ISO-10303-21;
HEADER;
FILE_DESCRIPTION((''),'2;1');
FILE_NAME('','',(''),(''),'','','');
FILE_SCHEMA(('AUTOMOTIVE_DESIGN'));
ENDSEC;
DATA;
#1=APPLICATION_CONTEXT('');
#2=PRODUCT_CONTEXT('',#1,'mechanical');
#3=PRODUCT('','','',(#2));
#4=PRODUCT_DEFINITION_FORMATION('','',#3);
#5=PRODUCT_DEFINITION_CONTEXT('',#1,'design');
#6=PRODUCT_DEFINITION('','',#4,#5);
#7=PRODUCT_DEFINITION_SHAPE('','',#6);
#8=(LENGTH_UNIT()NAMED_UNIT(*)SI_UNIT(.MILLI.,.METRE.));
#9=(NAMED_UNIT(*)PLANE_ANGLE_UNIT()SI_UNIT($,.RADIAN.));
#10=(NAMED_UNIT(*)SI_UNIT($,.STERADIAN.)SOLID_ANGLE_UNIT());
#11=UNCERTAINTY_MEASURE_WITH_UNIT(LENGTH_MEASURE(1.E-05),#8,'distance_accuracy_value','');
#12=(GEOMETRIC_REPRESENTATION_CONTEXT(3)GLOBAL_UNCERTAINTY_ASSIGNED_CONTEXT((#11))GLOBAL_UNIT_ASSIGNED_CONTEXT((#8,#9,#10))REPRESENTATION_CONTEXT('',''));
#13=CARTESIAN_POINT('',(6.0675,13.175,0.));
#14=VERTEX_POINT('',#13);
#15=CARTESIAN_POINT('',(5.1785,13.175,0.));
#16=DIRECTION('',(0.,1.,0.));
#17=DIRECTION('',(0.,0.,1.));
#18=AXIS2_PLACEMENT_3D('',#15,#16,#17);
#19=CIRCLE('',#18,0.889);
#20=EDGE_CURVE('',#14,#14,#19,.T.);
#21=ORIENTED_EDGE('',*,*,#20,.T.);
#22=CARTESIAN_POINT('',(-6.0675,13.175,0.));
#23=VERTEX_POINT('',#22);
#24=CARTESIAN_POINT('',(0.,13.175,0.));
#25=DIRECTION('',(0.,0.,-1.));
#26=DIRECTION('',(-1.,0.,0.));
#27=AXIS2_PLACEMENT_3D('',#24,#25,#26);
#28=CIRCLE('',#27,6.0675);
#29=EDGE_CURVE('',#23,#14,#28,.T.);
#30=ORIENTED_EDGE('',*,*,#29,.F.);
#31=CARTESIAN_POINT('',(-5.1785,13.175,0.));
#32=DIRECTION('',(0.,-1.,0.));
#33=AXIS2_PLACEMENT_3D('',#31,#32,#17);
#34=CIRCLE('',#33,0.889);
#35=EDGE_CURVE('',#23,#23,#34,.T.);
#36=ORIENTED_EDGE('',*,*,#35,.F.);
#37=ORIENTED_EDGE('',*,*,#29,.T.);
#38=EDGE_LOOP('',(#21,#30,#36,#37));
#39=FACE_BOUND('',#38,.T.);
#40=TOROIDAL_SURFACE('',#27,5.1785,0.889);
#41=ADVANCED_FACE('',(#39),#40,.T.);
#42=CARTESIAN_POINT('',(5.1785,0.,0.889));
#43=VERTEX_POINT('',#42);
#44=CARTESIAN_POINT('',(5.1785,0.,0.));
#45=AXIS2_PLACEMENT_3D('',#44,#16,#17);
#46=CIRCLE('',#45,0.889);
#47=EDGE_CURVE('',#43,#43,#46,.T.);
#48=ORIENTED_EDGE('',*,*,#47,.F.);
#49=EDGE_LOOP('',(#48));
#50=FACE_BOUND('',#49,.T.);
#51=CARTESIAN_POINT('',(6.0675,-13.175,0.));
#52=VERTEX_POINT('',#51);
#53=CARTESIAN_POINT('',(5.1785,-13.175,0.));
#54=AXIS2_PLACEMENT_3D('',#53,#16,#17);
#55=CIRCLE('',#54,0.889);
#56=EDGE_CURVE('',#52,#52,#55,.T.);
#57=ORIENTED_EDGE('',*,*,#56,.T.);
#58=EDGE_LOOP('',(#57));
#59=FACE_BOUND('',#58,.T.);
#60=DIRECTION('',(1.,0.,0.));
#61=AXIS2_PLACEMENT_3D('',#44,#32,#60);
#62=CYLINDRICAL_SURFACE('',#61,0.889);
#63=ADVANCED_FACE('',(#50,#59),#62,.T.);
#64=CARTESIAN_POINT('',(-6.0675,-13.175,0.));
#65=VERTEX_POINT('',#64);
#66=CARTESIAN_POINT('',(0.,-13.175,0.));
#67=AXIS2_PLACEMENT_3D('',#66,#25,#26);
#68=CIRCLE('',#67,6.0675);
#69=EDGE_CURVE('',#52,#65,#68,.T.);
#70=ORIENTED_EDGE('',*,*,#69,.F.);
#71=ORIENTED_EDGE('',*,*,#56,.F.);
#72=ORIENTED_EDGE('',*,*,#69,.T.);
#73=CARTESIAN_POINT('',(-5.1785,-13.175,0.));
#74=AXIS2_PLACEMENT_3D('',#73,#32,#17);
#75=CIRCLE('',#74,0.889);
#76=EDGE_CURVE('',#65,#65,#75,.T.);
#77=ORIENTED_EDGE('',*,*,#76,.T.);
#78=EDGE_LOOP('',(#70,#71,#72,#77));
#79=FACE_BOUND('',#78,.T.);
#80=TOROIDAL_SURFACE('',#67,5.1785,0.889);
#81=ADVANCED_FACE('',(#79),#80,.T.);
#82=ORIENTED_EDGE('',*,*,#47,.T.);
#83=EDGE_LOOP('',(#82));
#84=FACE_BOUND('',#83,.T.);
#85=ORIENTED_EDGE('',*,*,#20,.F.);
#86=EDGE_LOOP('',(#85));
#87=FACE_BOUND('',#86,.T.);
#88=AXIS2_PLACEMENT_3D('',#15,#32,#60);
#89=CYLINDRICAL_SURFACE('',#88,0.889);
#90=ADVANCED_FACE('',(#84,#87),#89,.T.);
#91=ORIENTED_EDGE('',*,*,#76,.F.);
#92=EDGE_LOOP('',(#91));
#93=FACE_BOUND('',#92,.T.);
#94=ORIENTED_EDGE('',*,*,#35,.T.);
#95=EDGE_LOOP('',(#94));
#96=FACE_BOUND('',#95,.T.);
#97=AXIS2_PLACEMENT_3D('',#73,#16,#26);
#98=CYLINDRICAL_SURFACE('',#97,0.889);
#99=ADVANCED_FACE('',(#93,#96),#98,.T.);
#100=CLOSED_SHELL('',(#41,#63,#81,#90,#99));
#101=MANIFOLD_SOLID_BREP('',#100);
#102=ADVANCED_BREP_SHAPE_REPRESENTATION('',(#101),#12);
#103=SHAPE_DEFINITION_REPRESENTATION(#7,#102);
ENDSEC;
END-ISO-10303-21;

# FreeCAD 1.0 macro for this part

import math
import FreeCAD as App
import Part
import Sketcher
from FreeCAD import Vector
Q = App.Units.Quantity

doc = App.newDocument("Part")
body = doc.addObject("PartDesign::Body", "Body")

sketch1 = body.newObject("Sketcher::SketchObject", "Sketch")
sketch1.AttachmentSupport = (doc.getObject("XZ_Plane"), [""])
sketch1.MapMode = "FlatFace"
sketch1.addGeometry(Part.Circle(Vector(5.2, 0, 0), Vector(0, 0, 1), 0.9), False)
sketch1.addConstraint([
    Sketcher.Constraint("PointOnObject", 0, 3, -1),
    Sketcher.Constraint("Diameter", 0, Q("0.07 in")),
    Sketcher.Constraint("DistanceX", -1, 1, 0, 3, 5.1785),
])

sketch2 = body.newObject("Sketcher::SketchObject", "Sketch001")
sketch2.AttachmentSupport = (doc.getObject("XY_Plane"), [""])
sketch2.MapMode = "FlatFace"
sketch2.addGeometry([
    Part.LineSegment(Vector(-4.3, -13.2, 0), Vector(-4.3, 13.2, 0)),
    Part.ArcOfCircle(Part.Circle(Vector(0, 13.2, 0), Vector(0, 0, 1), 4.3), math.radians(0), math.radians(180)),
    Part.LineSegment(Vector(4.3, 13.2, 0), Vector(4.3, -13.2, 0)),
    Part.ArcOfCircle(Part.Circle(Vector(0, -13.2, 0), Vector(0, 0, 1), 4.3), math.radians(180), math.radians(360)),
], False)
sketch2.addConstraint([
    Sketcher.Constraint("Tangent", 0, 2, 1, 2),
    Sketcher.Constraint("Tangent", 1, 1, 2, 1),
    Sketcher.Constraint("Tangent", 2, 2, 3, 2),
    Sketcher.Constraint("Tangent", 3, 1, 0, 1),
    Sketcher.Constraint("Vertical", 0),
    Sketcher.Constraint("Vertical", 2),
    Sketcher.Constraint("Symmetric", 1, 3, 3, 3, -1, 1),
    Sketcher.Constraint("Radius", 1, 4.2895),
    Sketcher.Constraint("DistanceY", 0, 1, 0, 2, 26.35),
])
doc.recompute()

additivepipe = body.newObject("PartDesign::AdditivePipe", "AdditivePipe")
additivepipe.Profile = sketch1
additivepipe.Spine = (sketch2, ["Edge1", "Edge2", "Edge3", "Edge4"])

doc.recompute()
